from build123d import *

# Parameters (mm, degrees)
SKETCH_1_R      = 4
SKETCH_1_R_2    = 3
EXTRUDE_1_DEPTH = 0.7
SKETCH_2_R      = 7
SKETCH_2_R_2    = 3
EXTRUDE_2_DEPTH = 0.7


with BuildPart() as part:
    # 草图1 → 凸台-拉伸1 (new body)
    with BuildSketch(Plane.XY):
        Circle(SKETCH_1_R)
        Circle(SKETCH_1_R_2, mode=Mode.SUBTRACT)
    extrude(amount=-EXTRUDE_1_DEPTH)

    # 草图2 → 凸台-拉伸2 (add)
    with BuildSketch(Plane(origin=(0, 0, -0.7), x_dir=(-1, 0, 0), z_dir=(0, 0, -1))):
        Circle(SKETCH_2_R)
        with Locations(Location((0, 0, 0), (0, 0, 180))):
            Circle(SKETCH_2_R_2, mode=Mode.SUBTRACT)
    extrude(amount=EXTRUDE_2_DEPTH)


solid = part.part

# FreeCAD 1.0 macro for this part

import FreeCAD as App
import Part
import Sketcher
Q = App.Units.Quantity

doc = App.newDocument("Part")
body = doc.addObject("PartDesign::Body", "Body")

# Sketch on XY plane
sketch1 = body.newObject("Sketcher::SketchObject", "Sketch")
sketch1.AttachmentSupport = (doc.getObject("XY_Plane"), [""])
sketch1.MapMode = "FlatFace"
sketch1.addGeometry([
    Part.Circle(App.Vector(0, 0, 0), App.Vector(0, 0, 1), 4),
    Part.Circle(App.Vector(0, 0, 0), App.Vector(0, 0, 1), 3),
], False)
sketch1.addConstraint([
    Sketcher.Constraint("Coincident", 0, 3, -1, 1),
    Sketcher.Constraint("Coincident", 1, 3, -1, 1),
    Sketcher.Constraint("Diameter", 0, Q("8 mm")),
    Sketcher.Constraint("Diameter", 1, Q("6 mm")),
])
pad1 = body.newObject("PartDesign::Pad", "Pad")
pad1.Profile = sketch1
pad1.Length = 0.7
pad1.Reversed = True

# Sketch on XY plane
sketch2 = body.newObject("Sketcher::SketchObject", "Sketch001")
sketch2.AttachmentSupport = (doc.getObject("XY_Plane"), [""])
sketch2.MapMode = "FlatFace"
sketch2.AttachmentOffset = App.Placement(App.Vector(0, 0, -0.7), App.Rotation())
sketch2.addGeometry([
    Part.Circle(App.Vector(0, 0, 0), App.Vector(0, 0, 1), 7),
    Part.Circle(App.Vector(0, 0, 0), App.Vector(0, 0, 1), 3),
], False)
sketch2.addConstraint([
    Sketcher.Constraint("Coincident", 0, 3, -1, 1),
    Sketcher.Constraint("Coincident", 1, 3, -1, 1),
    Sketcher.Constraint("Diameter", 0, Q("14 mm")),
    Sketcher.Constraint("Diameter", 1, Q("6 mm")),
])
pad2 = body.newObject("PartDesign::Pad", "Pad001")
pad2.Profile = sketch2
pad2.Length = 0.7
pad2.Reversed = True

doc.recompute()
